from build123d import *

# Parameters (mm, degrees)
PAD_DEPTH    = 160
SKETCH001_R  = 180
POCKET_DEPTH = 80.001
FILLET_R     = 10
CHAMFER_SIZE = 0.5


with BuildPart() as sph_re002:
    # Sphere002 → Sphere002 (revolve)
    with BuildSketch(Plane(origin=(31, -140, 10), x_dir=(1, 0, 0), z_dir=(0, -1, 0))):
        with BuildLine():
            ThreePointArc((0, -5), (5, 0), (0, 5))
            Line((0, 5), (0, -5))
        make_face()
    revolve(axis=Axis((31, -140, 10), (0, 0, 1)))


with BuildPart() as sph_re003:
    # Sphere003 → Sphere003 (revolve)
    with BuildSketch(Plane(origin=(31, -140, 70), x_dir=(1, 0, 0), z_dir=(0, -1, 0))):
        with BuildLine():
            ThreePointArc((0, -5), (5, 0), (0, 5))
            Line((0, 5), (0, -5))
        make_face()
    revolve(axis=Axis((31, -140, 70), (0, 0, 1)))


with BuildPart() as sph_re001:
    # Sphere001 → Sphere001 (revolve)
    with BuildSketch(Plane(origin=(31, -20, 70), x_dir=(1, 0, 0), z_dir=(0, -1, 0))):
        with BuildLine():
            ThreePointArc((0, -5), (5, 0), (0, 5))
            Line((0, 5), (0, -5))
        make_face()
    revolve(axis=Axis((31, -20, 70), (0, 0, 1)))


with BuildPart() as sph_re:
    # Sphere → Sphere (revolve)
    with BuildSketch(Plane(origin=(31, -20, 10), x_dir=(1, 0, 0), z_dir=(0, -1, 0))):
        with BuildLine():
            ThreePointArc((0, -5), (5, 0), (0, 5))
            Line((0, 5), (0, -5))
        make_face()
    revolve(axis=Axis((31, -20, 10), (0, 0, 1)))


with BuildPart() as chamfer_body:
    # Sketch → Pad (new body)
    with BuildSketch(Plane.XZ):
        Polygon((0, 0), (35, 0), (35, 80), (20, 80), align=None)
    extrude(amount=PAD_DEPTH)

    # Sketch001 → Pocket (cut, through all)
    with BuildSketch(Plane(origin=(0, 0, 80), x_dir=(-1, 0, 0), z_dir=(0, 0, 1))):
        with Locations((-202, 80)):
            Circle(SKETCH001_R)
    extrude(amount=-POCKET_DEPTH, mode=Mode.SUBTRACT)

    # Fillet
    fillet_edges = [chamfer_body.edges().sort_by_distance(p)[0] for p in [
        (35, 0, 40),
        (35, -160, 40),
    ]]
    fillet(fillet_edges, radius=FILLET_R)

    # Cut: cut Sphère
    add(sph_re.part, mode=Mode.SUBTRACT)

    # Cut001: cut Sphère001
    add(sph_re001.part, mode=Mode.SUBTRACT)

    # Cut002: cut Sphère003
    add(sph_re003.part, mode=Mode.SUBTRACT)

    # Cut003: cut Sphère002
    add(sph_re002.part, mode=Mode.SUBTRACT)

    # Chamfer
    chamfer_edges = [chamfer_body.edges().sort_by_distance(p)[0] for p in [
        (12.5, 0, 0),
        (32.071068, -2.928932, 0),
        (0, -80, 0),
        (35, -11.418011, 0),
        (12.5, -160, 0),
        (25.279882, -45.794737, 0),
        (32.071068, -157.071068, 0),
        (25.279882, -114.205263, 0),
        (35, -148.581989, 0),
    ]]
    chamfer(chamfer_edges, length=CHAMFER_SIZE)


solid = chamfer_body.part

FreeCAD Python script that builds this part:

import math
import FreeCAD as App
import Part
import Sketcher

V = App.Vector
Q = App.Units.Quantity


def edges_at(feature, points):
    """Names of the edges that pass closest to the given points."""
    edges = feature.Shape.Edges
    near = lambda p: min(range(len(edges)), key=lambda i: edges[i].distToShape(Part.Vertex(*p))[0])
    return sorted({f"Edge{near(p) + 1}" for p in points})

doc = App.newDocument("Part")
params = doc.addObject("Spreadsheet::Sheet", "Params")
for row, (alias, value) in enumerate([
    ("sketch1_radius", "5 mm"),
    ("revolution_angle", "360 deg"),
    ("sketch2_radius", "5 mm"),
    ("revolution2_angle", "360 deg"),
    ("sketch3_radius", "5 mm"),
    ("revolution3_angle", "360 deg"),
    ("sketch4_radius", "5 mm"),
    ("revolution4_angle", "360 deg"),
    ("sketch5_width", "35 mm"),
    ("sketch5_width2", "15 mm"),
    ("sketch5_height", "80 mm"),
    ("pad1_length", "160 mm"),
    ("sketch6_diameter", "360 mm"),
    ("fillet_radius", "10 mm"),
    ("chamfer_size", "0.5 mm"),
], start=1):
    params.set(f"A{row}", alias)
    params.set(f"B{row}", "=" + value)
    params.setAlias(f"B{row}", alias)

body = doc.addObject("PartDesign::Body", "Body")

sketch1 = body.newObject("Sketcher::SketchObject", "Sketch")
sketch1.AttachmentSupport = (doc.getObject("XZ_Plane"), [""])
sketch1.MapMode = "FlatFace"
sketch1.AttachmentOffset = App.Placement(V(0, 0, 140), App.Rotation())
sketch1.addGeometry(Part.ArcOfCircle(Part.Circle(V(31, 10, 0), V(0, 0, 1), 5), math.radians(-90), math.radians(90)), False)
sketch1.addGeometry(Part.LineSegment(V(31, 15, 0), V(31, 5, 0)), False)
sketch1.addGeometry(Part.LineSegment(V(31, 5, 0), V(31, 15, 0)), True)
sketch1.addConstraint(Sketcher.Constraint("Coincident", 0, 1, 1, 2))
sketch1.addConstraint(Sketcher.Constraint("Coincident", 1, 1, 0, 2))
sketch1.addConstraint(Sketcher.Constraint("Vertical", 1))
sketch1.addConstraint(Sketcher.Constraint("Vertical", 2))
sketch1.addConstraint(Sketcher.Constraint("Coincident", 2, 1, 0, 1))
sketch1.addConstraint(Sketcher.Constraint("Equal", 1, 2))
sketch1.addConstraint(Sketcher.Constraint("Radius", 0, Q("5 mm")))
sketch1.addConstraint(Sketcher.Constraint("DistanceX", -1, 1, 0, 3, Q("31 mm")))
sketch1.addConstraint(Sketcher.Constraint("DistanceY", -1, 1, 0, 3, Q("10 mm")))
sketch1.addConstraint(Sketcher.Constraint("DistanceX", -1, 1, 0, 1, Q("31 mm")))
sketch1.setExpression("Constraints[6]", "Params.sketch1_radius")
revolution = body.newObject("PartDesign::Revolution", "Revolution")
revolution.Profile = sketch1
revolution.ReferenceAxis = (sketch1, ["Axis0"])
revolution.setExpression("Angle", "Params.revolution_angle")
body2 = doc.addObject("PartDesign::Body", "Body001")

sketch2 = body2.newObject("Sketcher::SketchObject", "Sketch001")
sketch2.AttachmentSupport = (doc.getObject("XZ_Plane001"), [""])
sketch2.MapMode = "FlatFace"
sketch2.AttachmentOffset = App.Placement(V(0, 0, 140), App.Rotation())
sketch2.addGeometry(Part.ArcOfCircle(Part.Circle(V(31, 70, 0), V(0, 0, 1), 5), math.radians(-90), math.radians(90)), False)
sketch2.addGeometry(Part.LineSegment(V(31, 75, 0), V(31, 65, 0)), False)
sketch2.addGeometry(Part.LineSegment(V(31, 65, 0), V(31, 75, 0)), True)
sketch2.addConstraint(Sketcher.Constraint("Coincident", 0, 1, 1, 2))
sketch2.addConstraint(Sketcher.Constraint("Coincident", 1, 1, 0, 2))
sketch2.addConstraint(Sketcher.Constraint("Vertical", 1))
sketch2.addConstraint(Sketcher.Constraint("Vertical", 2))
sketch2.addConstraint(Sketcher.Constraint("Coincident", 2, 1, 0, 1))
sketch2.addConstraint(Sketcher.Constraint("Equal", 1, 2))
sketch2.addConstraint(Sketcher.Constraint("Radius", 0, Q("5 mm")))
sketch2.addConstraint(Sketcher.Constraint("DistanceX", -1, 1, 0, 3, Q("31 mm")))
sketch2.addConstraint(Sketcher.Constraint("DistanceY", -1, 1, 0, 3, Q("70 mm")))
sketch2.addConstraint(Sketcher.Constraint("DistanceX", -1, 1, 0, 1, Q("31 mm")))
sketch2.setExpression("Constraints[6]", "Params.sketch2_radius")
revolution2 = body2.newObject("PartDesign::Revolution", "Revolution001")
revolution2.Profile = sketch2
revolution2.ReferenceAxis = (sketch2, ["Axis0"])
revolution2.setExpression("Angle", "Params.revolution2_angle")
body3 = doc.addObject("PartDesign::Body", "Body002")

sketch3 = body3.newObject("Sketcher::SketchObject", "Sketch002")
sketch3.AttachmentSupport = (doc.getObject("XZ_Plane002"), [""])
sketch3.MapMode = "FlatFace"
sketch3.AttachmentOffset = App.Placement(V(0, 0, 20), App.Rotation())
sketch3.addGeometry(Part.ArcOfCircle(Part.Circle(V(31, 70, 0), V(0, 0, 1), 5), math.radians(-90), math.radians(90)), False)
sketch3.addGeometry(Part.LineSegment(V(31, 75, 0), V(31, 65, 0)), False)
sketch3.addGeometry(Part.LineSegment(V(31, 65, 0), V(31, 75, 0)), True)
sketch3.addConstraint(Sketcher.Constraint("Coincident", 0, 1, 1, 2))
sketch3.addConstraint(Sketcher.Constraint("Coincident", 1, 1, 0, 2))
sketch3.addConstraint(Sketcher.Constraint("Vertical", 1))
sketch3.addConstraint(Sketcher.Constraint("Vertical", 2))
sketch3.addConstraint(Sketcher.Constraint("Coincident", 2, 1, 0, 1))
sketch3.addConstraint(Sketcher.Constraint("Equal", 1, 2))
sketch3.addConstraint(Sketcher.Constraint("Radius", 0, Q("5 mm")))
sketch3.addConstraint(Sketcher.Constraint("DistanceX", -1, 1, 0, 3, Q("31 mm")))
sketch3.addConstraint(Sketcher.Constraint("DistanceY", -1, 1, 0, 3, Q("70 mm")))
sketch3.addConstraint(Sketcher.Constraint("DistanceX", -1, 1, 0, 1, Q("31 mm")))
sketch3.setExpression("Constraints[6]", "Params.sketch3_radius")
revolution3 = body3.newObject("PartDesign::Revolution", "Revolution002")
revolution3.Profile = sketch3
revolution3.ReferenceAxis = (sketch3, ["Axis0"])
revolution3.setExpression("Angle", "Params.revolution3_angle")
body4 = doc.addObject("PartDesign::Body", "Body003")

sketch4 = body4.newObject("Sketcher::SketchObject", "Sketch003")
sketch4.AttachmentSupport = (doc.getObject("XZ_Plane003"), [""])
sketch4.MapMode = "FlatFace"
sketch4.AttachmentOffset = App.Placement(V(0, 0, 20), App.Rotation())
sketch4.addGeometry(Part.ArcOfCircle(Part.Circle(V(31, 10, 0), V(0, 0, 1), 5), math.radians(-90), math.radians(90)), False)
sketch4.addGeometry(Part.LineSegment(V(31, 15, 0), V(31, 5, 0)), False)
sketch4.addGeometry(Part.LineSegment(V(31, 5, 0), V(31, 15, 0)), True)
sketch4.addConstraint(Sketcher.Constraint("Coincident", 0, 1, 1, 2))
sketch4.addConstraint(Sketcher.Constraint("Coincident", 1, 1, 0, 2))
sketch4.addConstraint(Sketcher.Constraint("Vertical", 1))
sketch4.addConstraint(Sketcher.Constraint("Vertical", 2))
sketch4.addConstraint(Sketcher.Constraint("Coincident", 2, 1, 0, 1))
sketch4.addConstraint(Sketcher.Constraint("Equal", 1, 2))
sketch4.addConstraint(Sketcher.Constraint("Radius", 0, Q("5 mm")))
sketch4.addConstraint(Sketcher.Constraint("DistanceX", -1, 1, 0, 3, Q("31 mm")))
sketch4.addConstraint(Sketcher.Constraint("DistanceY", -1, 1, 0, 3, Q("10 mm")))
sketch4.addConstraint(Sketcher.Constraint("DistanceX", -1, 1, 0, 1, Q("31 mm")))
sketch4.setExpression("Constraints[6]", "Params.sketch4_radius")
revolution4 = body4.newObject("PartDesign::Revolution", "Revolution003")
revolution4.Profile = sketch4
revolution4.ReferenceAxis = (sketch4, ["Axis0"])
revolution4.setExpression("Angle", "Params.revolution4_angle")
body5 = doc.addObject("PartDesign::Body", "Body004")

sketch5 = body5.newObject("Sketcher::SketchObject", "Sketch004")
sketch5.AttachmentSupport = (doc.getObject("XZ_Plane004"), [""])
sketch5.MapMode = "FlatFace"
sketch5.addGeometry(Part.LineSegment(V(0, 0, 0), V(35, 0, 0)), False)
sketch5.addGeometry(Part.LineSegment(V(35, 0, 0), V(35, 80, 0)), False)
sketch5.addGeometry(Part.LineSegment(V(35, 80, 0), V(20, 80, 0)), False)
sketch5.addGeometry(Part.LineSegment(V(20, 80, 0), V(0, 0, 0)), False)
sketch5.addConstraint(Sketcher.Constraint("Coincident", 0, 2, 1, 1))
sketch5.addConstraint(Sketcher.Constraint("Coincident", 1, 2, 2, 1))
sketch5.addConstraint(Sketcher.Constraint("Coincident", 2, 2, 3, 1))
sketch5.addConstraint(Sketcher.Constraint("Coincident", 3, 2, 0, 1))
sketch5.addConstraint(Sketcher.Constraint("Horizontal", 0))
sketch5.addConstraint(Sketcher.Constraint("Vertical", 1))
sketch5.addConstraint(Sketcher.Constraint("Horizontal", 2))
sketch5.addConstraint(Sketcher.Constraint("Coincident", 3, 2, -1, 1))
sketch5.addConstraint(Sketcher.Constraint("DistanceX", 0, 1, 0, 2, Q("35 mm")))
sketch5.addConstraint(Sketcher.Constraint("DistanceX", 2, 2, 2, 1, Q("15 mm")))
sketch5.addConstraint(Sketcher.Constraint("DistanceY", 1, 1, 1, 2, Q("80 mm")))
sketch5.setExpression("Constraints[8]", "Params.sketch5_width")
sketch5.setExpression("Constraints[9]", "Params.sketch5_width2")
sketch5.setExpression("Constraints[10]", "Params.sketch5_height")
pad1 = body5.newObject("PartDesign::Pad", "Pad")
pad1.Profile = sketch5
pad1.setExpression("Length", "Params.pad1_length")

sketch6 = body5.newObject("Sketcher::SketchObject", "Sketch005")
sketch6.AttachmentSupport = (doc.getObject("XY_Plane004"), [""])
sketch6.MapMode = "FlatFace"
sketch6.AttachmentOffset = App.Placement(V(0, 0, 80), App.Rotation())
sketch6.addGeometry(Part.Circle(V(202, -80, 0), V(0, 0, 1), 180), False)
sketch6.addConstraint(Sketcher.Constraint("Diameter", 0, Q("360 mm")))
sketch6.addConstraint(Sketcher.Constraint("DistanceX", -1, 1, 0, 3, Q("202 mm")))
sketch6.addConstraint(Sketcher.Constraint("DistanceY", 0, 3, -1, 1, Q("80 mm")))
sketch6.setExpression("Constraints[0]", "Params.sketch6_diameter")
pocket1 = body5.newObject("PartDesign::Pocket", "Pocket")
pocket1.Profile = sketch6
pocket1.Type = "ThroughAll"
doc.recompute()

fillet = body5.newObject("PartDesign::Fillet", "Fillet")
fillet.Base = (pocket1, edges_at(pocket1, [(35, 0, 40), (35, -160, 40)]))
fillet.setExpression("Radius", "Params.fillet_radius")
doc.recompute()

boolean = body5.newObject("PartDesign::Boolean", "Boolean")
boolean.Type = "Cut"
boolean.addObjects([body4])
doc.recompute()

boolean2 = body5.newObject("PartDesign::Boolean", "Boolean001")
boolean2.Type = "Cut"
boolean2.addObjects([body3])
doc.recompute()

boolean3 = body5.newObject("PartDesign::Boolean", "Boolean002")
boolean3.Type = "Cut"
boolean3.addObjects([body2])
doc.recompute()

boolean4 = body5.newObject("PartDesign::Boolean", "Boolean003")
boolean4.Type = "Cut"
boolean4.addObjects([body])
doc.recompute()

chamfer = body5.newObject("PartDesign::Chamfer", "Chamfer")
chamfer.Base = (boolean4, edges_at(boolean4, [
    (12.5, 0, 0),
    (32.071, -2.929, 0),
    (0, -80, 0),
    (35, -11.418, 0),
    (12.5, -160, 0),
    (22, -80, 0),
    (32.071, -157.071, 0),
    (22, -80, 0),
    (35, -148.582, 0),
]))
chamfer.setExpression("Size", "Params.chamfer_size")

doc.recompute()
